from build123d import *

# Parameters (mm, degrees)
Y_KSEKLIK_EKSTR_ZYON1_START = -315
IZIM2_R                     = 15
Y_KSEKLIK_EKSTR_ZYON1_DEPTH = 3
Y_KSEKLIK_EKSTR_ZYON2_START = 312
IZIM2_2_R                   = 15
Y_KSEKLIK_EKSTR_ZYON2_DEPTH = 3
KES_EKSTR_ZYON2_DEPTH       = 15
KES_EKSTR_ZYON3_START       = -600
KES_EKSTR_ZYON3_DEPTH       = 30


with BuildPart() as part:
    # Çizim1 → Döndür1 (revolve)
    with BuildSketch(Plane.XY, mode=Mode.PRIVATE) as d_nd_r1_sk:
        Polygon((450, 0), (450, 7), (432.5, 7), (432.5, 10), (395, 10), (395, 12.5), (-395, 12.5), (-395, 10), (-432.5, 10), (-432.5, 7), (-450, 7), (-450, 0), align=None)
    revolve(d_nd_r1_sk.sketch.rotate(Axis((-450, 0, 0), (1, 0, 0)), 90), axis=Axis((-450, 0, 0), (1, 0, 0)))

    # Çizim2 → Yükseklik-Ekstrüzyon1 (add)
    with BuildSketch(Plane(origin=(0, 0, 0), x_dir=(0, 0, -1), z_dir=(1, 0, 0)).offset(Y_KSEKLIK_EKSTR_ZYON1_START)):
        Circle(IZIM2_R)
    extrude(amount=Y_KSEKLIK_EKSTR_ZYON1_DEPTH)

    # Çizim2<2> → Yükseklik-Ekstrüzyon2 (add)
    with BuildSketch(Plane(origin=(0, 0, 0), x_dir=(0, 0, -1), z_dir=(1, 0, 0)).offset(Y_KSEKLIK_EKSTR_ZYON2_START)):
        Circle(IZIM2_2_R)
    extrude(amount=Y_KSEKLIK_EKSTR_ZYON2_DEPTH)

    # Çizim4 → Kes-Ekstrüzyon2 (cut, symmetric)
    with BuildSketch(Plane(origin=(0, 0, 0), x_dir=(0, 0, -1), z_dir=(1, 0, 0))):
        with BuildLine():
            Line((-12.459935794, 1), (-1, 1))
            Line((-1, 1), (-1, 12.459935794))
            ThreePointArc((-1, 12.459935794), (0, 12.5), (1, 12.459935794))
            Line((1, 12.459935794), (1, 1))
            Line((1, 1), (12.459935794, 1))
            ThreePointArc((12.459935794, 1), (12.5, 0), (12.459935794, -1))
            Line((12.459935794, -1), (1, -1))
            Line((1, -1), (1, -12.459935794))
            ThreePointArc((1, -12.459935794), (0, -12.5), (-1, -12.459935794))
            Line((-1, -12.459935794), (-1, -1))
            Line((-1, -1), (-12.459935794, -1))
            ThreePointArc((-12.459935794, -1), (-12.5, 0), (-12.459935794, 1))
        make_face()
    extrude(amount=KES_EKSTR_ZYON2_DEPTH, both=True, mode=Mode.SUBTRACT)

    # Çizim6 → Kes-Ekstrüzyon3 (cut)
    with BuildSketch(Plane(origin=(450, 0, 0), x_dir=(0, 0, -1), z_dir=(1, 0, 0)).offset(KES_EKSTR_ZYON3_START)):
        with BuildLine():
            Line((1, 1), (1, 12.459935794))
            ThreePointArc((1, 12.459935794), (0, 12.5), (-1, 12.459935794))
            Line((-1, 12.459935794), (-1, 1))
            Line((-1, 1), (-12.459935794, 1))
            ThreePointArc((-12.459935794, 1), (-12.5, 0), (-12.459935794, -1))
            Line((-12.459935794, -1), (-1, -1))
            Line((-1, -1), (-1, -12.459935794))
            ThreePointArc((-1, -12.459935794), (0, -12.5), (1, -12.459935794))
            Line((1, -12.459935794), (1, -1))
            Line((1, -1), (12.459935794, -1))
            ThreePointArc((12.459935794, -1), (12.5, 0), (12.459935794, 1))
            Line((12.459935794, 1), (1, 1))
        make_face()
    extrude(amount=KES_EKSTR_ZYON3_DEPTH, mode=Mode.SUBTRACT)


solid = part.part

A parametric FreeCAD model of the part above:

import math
import FreeCAD as App
import Part
import Sketcher

doc = App.newDocument("Part")
body = doc.addObject("PartDesign::Body", "Body")

# Sketch on XY plane
sketch1 = body.newObject("Sketcher::SketchObject", "Sketch")
sketch1.AttachmentSupport = (doc.getObject("XY_Plane"), [""])
sketch1.MapMode = "FlatFace"
sketch1.addGeometry(Part.LineSegment(App.Vector(450, 0, 0), App.Vector(450, 7, 0)), False)
sketch1.addGeometry(Part.LineSegment(App.Vector(450, 7, 0), App.Vector(432.5, 7, 0)), False)
sketch1.addGeometry(Part.LineSegment(App.Vector(432.5, 7, 0), App.Vector(432.5, 10, 0)), False)
sketch1.addGeometry(Part.LineSegment(App.Vector(432.5, 10, 0), App.Vector(395, 10, 0)), False)
sketch1.addGeometry(Part.LineSegment(App.Vector(395, 10, 0), App.Vector(395, 12.5, 0)), False)
sketch1.addGeometry(Part.LineSegment(App.Vector(395, 12.5, 0), App.Vector(-395, 12.5, 0)), False)
sketch1.addGeometry(Part.LineSegment(App.Vector(-395, 12.5, 0), App.Vector(-395, 10, 0)), False)
sketch1.addGeometry(Part.LineSegment(App.Vector(-395, 10, 0), App.Vector(-432.5, 10, 0)), False)
sketch1.addGeometry(Part.LineSegment(App.Vector(-432.5, 10, 0), App.Vector(-432.5, 7, 0)), False)
sketch1.addGeometry(Part.LineSegment(App.Vector(-432.5, 7, 0), App.Vector(-450, 7, 0)), False)
sketch1.addGeometry(Part.LineSegment(App.Vector(-450, 7, 0), App.Vector(-450, 0, 0)), False)
sketch1.addGeometry(Part.LineSegment(App.Vector(-450, 0, 0), App.Vector(450, 0, 0)), False)
sketch1.addConstraint(Sketcher.Constraint("Coincident", 0, 2, 1, 1))
sketch1.addConstraint(Sketcher.Constraint("Coincident", 1, 2, 2, 1))
sketch1.addConstraint(Sketcher.Constraint("Coincident", 2, 2, 3, 1))
sketch1.addConstraint(Sketcher.Constraint("Coincident", 3, 2, 4, 1))
sketch1.addConstraint(Sketcher.Constraint("Coincident", 4, 2, 5, 1))
sketch1.addConstraint(Sketcher.Constraint("Coincident", 5, 2, 6, 1))
sketch1.addConstraint(Sketcher.Constraint("Coincident", 6, 2, 7, 1))
sketch1.addConstraint(Sketcher.Constraint("Coincident", 7, 2, 8, 1))
sketch1.addConstraint(Sketcher.Constraint("Coincident", 8, 2, 9, 1))
sketch1.addConstraint(Sketcher.Constraint("Coincident", 9, 2, 10, 1))
sketch1.addConstraint(Sketcher.Constraint("Coincident", 10, 2, 11, 1))
sketch1.addConstraint(Sketcher.Constraint("Coincident", 11, 2, 0, 1))
sketch1.addConstraint(Sketcher.Constraint("Vertical", 0))
sketch1.addConstraint(Sketcher.Constraint("Horizontal", 1))
sketch1.addConstraint(Sketcher.Constraint("Vertical", 2))
sketch1.addConstraint(Sketcher.Constraint("Horizontal", 3))
sketch1.addConstraint(Sketcher.Constraint("Vertical", 4))
sketch1.addConstraint(Sketcher.Constraint("Horizontal", 5))
sketch1.addConstraint(Sketcher.Constraint("Vertical", 6))
sketch1.addConstraint(Sketcher.Constraint("Horizontal", 7))
sketch1.addConstraint(Sketcher.Constraint("Vertical", 8))
sketch1.addConstraint(Sketcher.Constraint("Horizontal", 9))
sketch1.addConstraint(Sketcher.Constraint("Vertical", 10))
sketch1.addConstraint(Sketcher.Constraint("Horizontal", 11))
sketch1.addConstraint(Sketcher.Constraint("Symmetric", 10, 2, 11, 2, -1, 1))
sketch1.addConstraint(Sketcher.Constraint("Symmetric", 3, 2, 6, 2, -2))
sketch1.addConstraint(Sketcher.Constraint("Symmetric", 1, 2, 8, 2, -2))
sketch1.addConstraint(Sketcher.Constraint("DistanceX", 5, 2, 5, 1, 790.0))
sketch1.addConstraint(Sketcher.Constraint("DistanceX", 11, 1, 11, 2, 900.0))
sketch1.addConstraint(Sketcher.Constraint("DistanceY", 0, 1, 0, 2, 7.0))
sketch1.addConstraint(Sketcher.Constraint("DistanceY", 2, 1, 2, 2, 3.0))
sketch1.addConstraint(Sketcher.Constraint("DistanceX", 1, 2, 1, 1, 17.5))
sketch1.addConstraint(Sketcher.Constraint("DistanceY", 4, 1, 4, 2, 2.5))
revolution = body.newObject("PartDesign::Revolution", "Revolution")
revolution.Profile = sketch1
revolution.ReferenceAxis = (sketch1, ["H_Axis"])
revolution.Angle = 360

# Sketch on YZ plane
sketch2 = body.newObject("Sketcher::SketchObject", "Sketch001")
sketch2.AttachmentSupport = (doc.getObject("YZ_Plane"), [""])
sketch2.MapMode = "FlatFace"
sketch2.AttachmentOffset = App.Placement(App.Vector(0, 0, -315), App.Rotation())
sketch2.addGeometry(Part.Circle(App.Vector(0, 0, 0), App.Vector(0, 0, 1), 15), False)
sketch2.addConstraint(Sketcher.Constraint("Coincident", 0, 3, -1, 1))
sketch2.addConstraint(Sketcher.Constraint("Diameter", 0, 30.0))
pad1 = body.newObject("PartDesign::Pad", "Pad")
pad1.Profile = sketch2
pad1.Length = 3

# Sketch on YZ plane
sketch3 = body.newObject("Sketcher::SketchObject", "Sketch002")
sketch3.AttachmentSupport = (doc.getObject("YZ_Plane"), [""])
sketch3.MapMode = "FlatFace"
sketch3.AttachmentOffset = App.Placement(App.Vector(0, 0, 312), App.Rotation())
sketch3.addGeometry(Part.Circle(App.Vector(0, 0, 0), App.Vector(0, 0, 1), 15), False)
sketch3.addConstraint(Sketcher.Constraint("Coincident", 0, 3, -1, 1))
sketch3.addConstraint(Sketcher.Constraint("Diameter", 0, 30.0))
pad2 = body.newObject("PartDesign::Pad", "Pad001")
pad2.Profile = sketch3
pad2.Length = 3

# Sketch on YZ plane
sketch4 = body.newObject("Sketcher::SketchObject", "Sketch003")
sketch4.AttachmentSupport = (doc.getObject("YZ_Plane"), [""])
sketch4.MapMode = "FlatFace"
sketch4.addGeometry(Part.LineSegment(App.Vector(1, 1, 0), App.Vector(1, 12.459936, 0)), False)
sketch4.addGeometry(Part.ArcOfCircle(Part.Circle(App.Vector(0, 0, 0), App.Vector(0, 0, 1), 12.5), math.radians(85.411434), math.radians(94.588566)), False)
sketch4.addGeometry(Part.LineSegment(App.Vector(-1, 12.459936, 0), App.Vector(-1, 1, 0)), False)
sketch4.addGeometry(Part.LineSegment(App.Vector(-1, 1, 0), App.Vector(-12.459936, 1, 0)), False)
sketch4.addGeometry(Part.ArcOfCircle(Part.Circle(App.Vector(0, 0, 0), App.Vector(0, 0, 1), 12.5), math.radians(175.411434), math.radians(184.588566)), False)
sketch4.addGeometry(Part.LineSegment(App.Vector(-12.459936, -1, 0), App.Vector(-1, -1, 0)), False)
sketch4.addGeometry(Part.LineSegment(App.Vector(-1, -1, 0), App.Vector(-1, -12.459936, 0)), False)
sketch4.addGeometry(Part.ArcOfCircle(Part.Circle(App.Vector(0, 0, 0), App.Vector(0, 0, 1), 12.5), math.radians(-94.588566), math.radians(-85.411434)), False)
sketch4.addGeometry(Part.LineSegment(App.Vector(1, -12.459936, 0), App.Vector(1, -1, 0)), False)
sketch4.addGeometry(Part.LineSegment(App.Vector(1, -1, 0), App.Vector(12.459936, -1, 0)), False)
sketch4.addGeometry(Part.ArcOfCircle(Part.Circle(App.Vector(0, 0, 0), App.Vector(0, 0, 1), 12.5), math.radians(-4.588566), math.radians(4.588566)), False)
sketch4.addGeometry(Part.LineSegment(App.Vector(12.459936, 1, 0), App.Vector(1, 1, 0)), False)
sketch4.addConstraint(Sketcher.Constraint("Coincident", 0, 2, 1, 1))
sketch4.addConstraint(Sketcher.Constraint("Coincident", 1, 2, 2, 1))
sketch4.addConstraint(Sketcher.Constraint("Coincident", 2, 2, 3, 1))
sketch4.addConstraint(Sketcher.Constraint("Coincident", 3, 2, 4, 1))
sketch4.addConstraint(Sketcher.Constraint("Coincident", 4, 2, 5, 1))
sketch4.addConstraint(Sketcher.Constraint("Coincident", 5, 2, 6, 1))
sketch4.addConstraint(Sketcher.Constraint("Coincident", 6, 2, 7, 1))
sketch4.addConstraint(Sketcher.Constraint("Coincident", 7, 2, 8, 1))
sketch4.addConstraint(Sketcher.Constraint("Coincident", 8, 2, 9, 1))
sketch4.addConstraint(Sketcher.Constraint("Coincident", 9, 2, 10, 1))
sketch4.addConstraint(Sketcher.Constraint("Coincident", 10, 2, 11, 1))
sketch4.addConstraint(Sketcher.Constraint("Coincident", 11, 2, 0, 1))
sketch4.addConstraint(Sketcher.Constraint("Vertical", 0))
sketch4.addConstraint(Sketcher.Constraint("Vertical", 2))
sketch4.addConstraint(Sketcher.Constraint("Horizontal", 3))
sketch4.addConstraint(Sketcher.Constraint("Horizontal", 5))
sketch4.addConstraint(Sketcher.Constraint("Vertical", 6))
sketch4.addConstraint(Sketcher.Constraint("Vertical", 8))
sketch4.addConstraint(Sketcher.Constraint("Horizontal", 9))
sketch4.addConstraint(Sketcher.Constraint("Horizontal", 11))
sketch4.addConstraint(Sketcher.Constraint("Coincident", 1, 3, -1, 1))
sketch4.addConstraint(Sketcher.Constraint("Coincident", 4, 3, -1, 1))
sketch4.addConstraint(Sketcher.Constraint("Coincident", 7, 3, -1, 1))
sketch4.addConstraint(Sketcher.Constraint("Coincident", 10, 3, -1, 1))
sketch4.addConstraint(Sketcher.Constraint("Equal", 1, 4))
sketch4.addConstraint(Sketcher.Constraint("Equal", 4, 7))
sketch4.addConstraint(Sketcher.Constraint("Equal", 7, 10))
sketch4.addConstraint(Sketcher.Constraint("Symmetric", 2, 2, 8, 2, -1, 1))
sketch4.addConstraint(Sketcher.Constraint("Symmetric", 5, 2, 11, 2, -1, 1))
sketch4.addConstraint(Sketcher.Constraint("Symmetric", 5, 2, 8, 2, -2))
sketch4.addConstraint(Sketcher.Constraint("Equal", 11, 0))
sketch4.addConstraint(Sketcher.Constraint("Radius", 1, 12.5))
sketch4.addConstraint(Sketcher.Constraint("DistanceX", -1, 1, 0, 2, 1.0))
pocket1 = body.newObject("PartDesign::Pocket", "Pocket")
pocket1.Profile = sketch4
pocket1.Length = 30
pocket1.Midplane = True

# Sketch on YZ plane
sketch5 = body.newObject("Sketcher::SketchObject", "Sketch004")
sketch5.AttachmentSupport = (doc.getObject("YZ_Plane"), [""])
sketch5.MapMode = "FlatFace"
sketch5.AttachmentOffset = App.Placement(App.Vector(0, 0, -150), App.Rotation())
sketch5.addGeometry(Part.LineSegment(App.Vector(1, -1, 0), App.Vector(12.459936, -1, 0)), False)
sketch5.addGeometry(Part.ArcOfCircle(Part.Circle(App.Vector(0, 0, 0), App.Vector(0, 0, 1), 12.5), math.radians(-4.588566), math.radians(4.588566)), False)
sketch5.addGeometry(Part.LineSegment(App.Vector(12.459936, 1, 0), App.Vector(1, 1, 0)), False)
sketch5.addGeometry(Part.LineSegment(App.Vector(1, 1, 0), App.Vector(1, 12.459936, 0)), False)
sketch5.addGeometry(Part.ArcOfCircle(Part.Circle(App.Vector(0, 0, 0), App.Vector(0, 0, 1), 12.5), math.radians(85.411434), math.radians(94.588566)), False)
sketch5.addGeometry(Part.LineSegment(App.Vector(-1, 12.459936, 0), App.Vector(-1, 1, 0)), False)
sketch5.addGeometry(Part.LineSegment(App.Vector(-1, 1, 0), App.Vector(-12.459936, 1, 0)), False)
sketch5.addGeometry(Part.ArcOfCircle(Part.Circle(App.Vector(0, 0, 0), App.Vector(0, 0, 1), 12.5), math.radians(175.411434), math.radians(184.588566)), False)
sketch5.addGeometry(Part.LineSegment(App.Vector(-12.459936, -1, 0), App.Vector(-1, -1, 0)), False)
sketch5.addGeometry(Part.LineSegment(App.Vector(-1, -1, 0), App.Vector(-1, -12.459936, 0)), False)
sketch5.addGeometry(Part.ArcOfCircle(Part.Circle(App.Vector(0, 0, 0), App.Vector(0, 0, 1), 12.5), math.radians(-94.588566), math.radians(-85.411434)), False)
sketch5.addGeometry(Part.LineSegment(App.Vector(1, -12.459936, 0), App.Vector(1, -1, 0)), False)
sketch5.addConstraint(Sketcher.Constraint("Coincident", 0, 2, 1, 1))
sketch5.addConstraint(Sketcher.Constraint("Coincident", 1, 2, 2, 1))
sketch5.addConstraint(Sketcher.Constraint("Coincident", 2, 2, 3, 1))
sketch5.addConstraint(Sketcher.Constraint("Coincident", 3, 2, 4, 1))
sketch5.addConstraint(Sketcher.Constraint("Coincident", 4, 2, 5, 1))
sketch5.addConstraint(Sketcher.Constraint("Coincident", 5, 2, 6, 1))
sketch5.addConstraint(Sketcher.Constraint("Coincident", 6, 2, 7, 1))
sketch5.addConstraint(Sketcher.Constraint("Coincident", 7, 2, 8, 1))
sketch5.addConstraint(Sketcher.Constraint("Coincident", 8, 2, 9, 1))
sketch5.addConstraint(Sketcher.Constraint("Coincident", 9, 2, 10, 1))
sketch5.addConstraint(Sketcher.Constraint("Coincident", 10, 2, 11, 1))
sketch5.addConstraint(Sketcher.Constraint("Coincident", 11, 2, 0, 1))
sketch5.addConstraint(Sketcher.Constraint("Horizontal", 0))
sketch5.addConstraint(Sketcher.Constraint("Horizontal", 2))
sketch5.addConstraint(Sketcher.Constraint("Vertical", 3))
sketch5.addConstraint(Sketcher.Constraint("Vertical", 5))
sketch5.addConstraint(Sketcher.Constraint("Horizontal", 6))
sketch5.addConstraint(Sketcher.Constraint("Horizontal", 8))
sketch5.addConstraint(Sketcher.Constraint("Vertical", 9))
sketch5.addConstraint(Sketcher.Constraint("Vertical", 11))
sketch5.addConstraint(Sketcher.Constraint("Coincident", 1, 3, -1, 1))
sketch5.addConstraint(Sketcher.Constraint("Coincident", 4, 3, -1, 1))
sketch5.addConstraint(Sketcher.Constraint("Coincident", 7, 3, -1, 1))
sketch5.addConstraint(Sketcher.Constraint("Coincident", 10, 3, -1, 1))
sketch5.addConstraint(Sketcher.Constraint("Equal", 1, 4))
sketch5.addConstraint(Sketcher.Constraint("Equal", 4, 7))
sketch5.addConstraint(Sketcher.Constraint("Equal", 7, 10))
sketch5.addConstraint(Sketcher.Constraint("Symmetric", 2, 2, 8, 2, -1, 1))
sketch5.addConstraint(Sketcher.Constraint("Symmetric", 5, 2, 11, 2, -1, 1))
sketch5.addConstraint(Sketcher.Constraint("Symmetric", 2, 2, 5, 2, -2))
sketch5.addConstraint(Sketcher.Constraint("Equal", 8, 3))
sketch5.addConstraint(Sketcher.Constraint("Radius", 1, 12.5))
sketch5.addConstraint(Sketcher.Constraint("DistanceY", 0, 2, -1, 1, 1.0))
pocket2 = body.newObject("PartDesign::Pocket", "Pocket001")
pocket2.Profile = sketch5
pocket2.Length = 30
pocket2.Reversed = True

doc.recompute()
